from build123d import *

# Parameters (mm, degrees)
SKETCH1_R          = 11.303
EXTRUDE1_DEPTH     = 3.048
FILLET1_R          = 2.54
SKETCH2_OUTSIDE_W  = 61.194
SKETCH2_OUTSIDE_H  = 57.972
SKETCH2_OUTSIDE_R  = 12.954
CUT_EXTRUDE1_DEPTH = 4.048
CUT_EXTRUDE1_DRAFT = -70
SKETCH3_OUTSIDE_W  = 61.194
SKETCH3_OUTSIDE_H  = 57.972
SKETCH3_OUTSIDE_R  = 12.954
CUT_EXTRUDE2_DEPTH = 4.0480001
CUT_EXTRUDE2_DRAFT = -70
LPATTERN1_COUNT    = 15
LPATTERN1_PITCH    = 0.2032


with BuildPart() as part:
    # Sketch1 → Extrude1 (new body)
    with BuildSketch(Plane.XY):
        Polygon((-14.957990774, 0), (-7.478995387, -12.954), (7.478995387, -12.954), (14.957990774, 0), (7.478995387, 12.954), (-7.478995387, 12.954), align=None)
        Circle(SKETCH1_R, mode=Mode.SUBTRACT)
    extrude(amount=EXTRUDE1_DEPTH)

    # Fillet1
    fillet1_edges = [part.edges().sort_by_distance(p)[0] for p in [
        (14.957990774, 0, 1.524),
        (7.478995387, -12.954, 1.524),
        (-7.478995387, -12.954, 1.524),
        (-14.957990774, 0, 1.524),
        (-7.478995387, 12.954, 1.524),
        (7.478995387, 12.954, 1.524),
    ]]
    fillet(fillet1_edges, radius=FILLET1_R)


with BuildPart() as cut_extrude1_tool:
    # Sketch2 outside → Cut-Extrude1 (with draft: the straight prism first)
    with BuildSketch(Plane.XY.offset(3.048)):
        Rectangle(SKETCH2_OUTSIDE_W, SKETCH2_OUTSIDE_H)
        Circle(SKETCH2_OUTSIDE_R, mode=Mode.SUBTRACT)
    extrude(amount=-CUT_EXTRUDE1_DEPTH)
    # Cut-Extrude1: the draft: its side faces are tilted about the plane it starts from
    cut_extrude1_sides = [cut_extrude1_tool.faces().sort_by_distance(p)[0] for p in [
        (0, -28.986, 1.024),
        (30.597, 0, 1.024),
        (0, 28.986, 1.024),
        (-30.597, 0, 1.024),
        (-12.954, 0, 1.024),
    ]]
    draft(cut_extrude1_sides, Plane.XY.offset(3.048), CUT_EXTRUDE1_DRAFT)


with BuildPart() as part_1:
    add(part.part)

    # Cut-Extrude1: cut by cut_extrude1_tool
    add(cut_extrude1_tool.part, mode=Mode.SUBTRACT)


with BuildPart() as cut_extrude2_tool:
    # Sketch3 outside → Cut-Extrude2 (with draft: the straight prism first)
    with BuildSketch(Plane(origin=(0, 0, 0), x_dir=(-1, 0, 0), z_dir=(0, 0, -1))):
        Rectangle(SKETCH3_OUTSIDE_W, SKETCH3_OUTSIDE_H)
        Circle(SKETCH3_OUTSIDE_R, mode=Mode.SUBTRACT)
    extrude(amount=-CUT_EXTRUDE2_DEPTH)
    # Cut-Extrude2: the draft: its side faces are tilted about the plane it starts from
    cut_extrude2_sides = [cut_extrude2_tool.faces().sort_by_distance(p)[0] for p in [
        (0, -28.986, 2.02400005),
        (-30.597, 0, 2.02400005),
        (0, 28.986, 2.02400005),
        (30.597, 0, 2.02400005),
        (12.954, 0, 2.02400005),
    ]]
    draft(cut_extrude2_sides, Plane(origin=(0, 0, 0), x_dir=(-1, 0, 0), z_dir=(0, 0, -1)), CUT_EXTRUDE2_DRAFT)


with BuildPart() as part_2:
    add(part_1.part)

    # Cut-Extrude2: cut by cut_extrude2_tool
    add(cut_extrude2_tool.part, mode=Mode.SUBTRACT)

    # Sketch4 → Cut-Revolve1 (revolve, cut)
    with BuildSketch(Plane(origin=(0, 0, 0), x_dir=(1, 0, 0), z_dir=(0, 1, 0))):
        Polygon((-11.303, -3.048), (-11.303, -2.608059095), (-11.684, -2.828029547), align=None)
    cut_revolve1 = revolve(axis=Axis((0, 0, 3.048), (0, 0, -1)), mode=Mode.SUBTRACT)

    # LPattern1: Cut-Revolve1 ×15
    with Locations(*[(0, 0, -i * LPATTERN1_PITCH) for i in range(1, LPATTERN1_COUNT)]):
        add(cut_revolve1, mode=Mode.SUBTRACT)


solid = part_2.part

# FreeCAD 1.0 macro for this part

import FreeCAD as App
import Part
import Sketcher
from FreeCAD import Vector
Q = App.Units.Quantity


def edges_at(feature, points):
    """Names of the edges that pass closest to the given points."""
    edges = feature.Shape.Edges
    near = lambda p: min(range(len(edges)), key=lambda i: edges[i].distToShape(Part.Vertex(*p))[0])
    return sorted({f"Edge{near(p) + 1}" for p in points})


def faces_at(feature, points):
    """Names of the faces that lie closest to the given points."""
    faces = feature.Shape.Faces
    near = lambda p: min(range(len(faces)), key=lambda i: faces[i].distToShape(Part.Vertex(*p))[0])
    return sorted({f"Face{near(p) + 1}" for p in points})


def add_polygon(sketch, points):
    """Adds a closed chain of lines whose ends are joined by coincident constraints."""
    first, n = sketch.GeometryCount, len(points)
    for a, b in zip(points, points[1:] + points[:1]):
        sketch.addGeometry(Part.LineSegment(App.Vector(*a, 0), App.Vector(*b, 0)), False)
    for i in range(n):
        sketch.addConstraint(Sketcher.Constraint("Coincident", first + i, 2, first + (i + 1) % n, 1))

doc = App.newDocument("Part")
body = doc.addObject("PartDesign::Body", "Body")

sketch1 = body.newObject("Sketcher::SketchObject", "Sketch")
sketch1.AttachmentSupport = (doc.getObject("XY_Plane"), [""])
sketch1.MapMode = "FlatFace"
add_polygon(sketch1, [(-15, 0), (-7, -13), (7, -13), (15, 0), (7, 13), (-7, 13)])
sketch1.addGeometry(Part.Circle(Vector(0, 0, 0), Vector(0, 0, 1), 11), False)
sketch1.addConstraint([
    Sketcher.Constraint("Horizontal", 1),
    Sketcher.Constraint("Horizontal", 4),
    Sketcher.Constraint("Coincident", 6, 3, -1, 1),
    Sketcher.Constraint("Symmetric", 0, 2, 3, 2, -1, 1),
    Sketcher.Constraint("Symmetric", 2, 2, 5, 2, -1, 1),
    Sketcher.Constraint("PointOnObject", 2, 2, -1),
    Sketcher.Constraint("Parallel", 2, 5),
    Sketcher.Constraint("Vertical", 1, 2, 3, 2),
    Sketcher.Constraint("Diameter", 6, Q("0.89 in")),
    Sketcher.Constraint("Angle", 0, Q("-60 deg")),
    Sketcher.Constraint("DistanceY", 0, 2, -1, 1, Q("0.51 in")),
    Sketcher.Constraint("DistanceX", 1, 1, 1, 2, Q("14.957991 mm")),
])
pad1 = body.newObject("PartDesign::Pad", "Pad")
pad1.Profile = sketch1
pad1.Length = Q("0.12 in")
doc.recompute()

fillet = body.newObject("PartDesign::Fillet", "Fillet")
fillet.Base = (pad1, edges_at(pad1, [
    (14.958, 0, 1.524),
    (7.479, -12.954, 1.524),
    (-7.479, -12.954, 1.524),
    (-14.958, 0, 1.524),
    (-7.479, 12.954, 1.524),
    (7.479, 12.954, 1.524),
]))
fillet.Radius = Q("0.1 in")
body2 = doc.addObject("PartDesign::Body", "Body001")

sketch2 = body2.newObject("Sketcher::SketchObject", "Sketch001")
sketch2.AttachmentSupport = (doc.getObject("XY_Plane001"), [""])
sketch2.MapMode = "FlatFace"
sketch2.AttachmentOffset = App.Placement(Vector(0, 0, 0.12 * 25.4), App.Rotation())
add_polygon(sketch2, [(-31, 29), (-31, -29), (31, -29), (31, 29)])
sketch2.addGeometry(Part.Circle(Vector(0, 0, 0), Vector(0, 0, 1), 13), False)
sketch2.addConstraint([
    Sketcher.Constraint("Vertical", 0),
    Sketcher.Constraint("Horizontal", 1),
    Sketcher.Constraint("Vertical", 2),
    Sketcher.Constraint("Horizontal", 3),
    Sketcher.Constraint("Coincident", 4, 3, -1, 1),
    Sketcher.Constraint("Symmetric", 0, 2, 2, 2, -1, 1),
    Sketcher.Constraint("Diameter", 4, Q("1.02 in")),
    Sketcher.Constraint("DistanceX", 1, 1, 1, 2, Q("61.194 mm")),
    Sketcher.Constraint("DistanceY", 0, 2, 0, 1, Q("57.972 mm")),
])
pad2 = body2.newObject("PartDesign::Pad", "Pad001")
pad2.Profile = sketch2
pad2.Length = 4.048
pad2.Reversed = True
doc.recompute()

datumplane = body2.newObject("PartDesign::Plane", "DatumPlane")
datumplane.AttachmentSupport = (doc.getObject("XY_Plane001"), [""])
datumplane.MapMode = "FlatFace"
datumplane.AttachmentOffset = App.Placement(Vector(0, 0, 0.12 * 25.4), App.Rotation())
draft = body2.newObject("PartDesign::Draft", "Draft")
draft.Base = (pad2, faces_at(pad2, [
    (0, -28.986, 1.024),
    (30.597, 0, 1.024),
    (0, 28.986, 1.024),
    (-30.597, 0, 1.024),
    (-12.954, 0, 1.024),
]))
draft.NeutralPlane = (datumplane, [""])
draft.Angle = 70
draft.Reversed = True
doc.recompute()

boolean = body.newObject("PartDesign::Boolean", "Boolean")
boolean.Type = "Cut"
boolean.addObjects([body2])
body3 = doc.addObject("PartDesign::Body", "Body002")

sketch3 = body3.newObject("Sketcher::SketchObject", "Sketch002")
sketch3.AttachmentSupport = (doc.getObject("XY_Plane002"), [""])
sketch3.MapMode = "FlatFace"
add_polygon(sketch3, [(31, 29), (31, -29), (-31, -29), (-31, 29)])
sketch3.addGeometry(Part.Circle(Vector(0, 0, 0), Vector(0, 0, 1), 13), False)
sketch3.addConstraint([
    Sketcher.Constraint("Vertical", 0),
    Sketcher.Constraint("Horizontal", 1),
    Sketcher.Constraint("Vertical", 2),
    Sketcher.Constraint("Horizontal", 3),
    Sketcher.Constraint("Coincident", 4, 3, -1, 1),
    Sketcher.Constraint("Symmetric", 0, 2, 2, 2, -1, 1),
    Sketcher.Constraint("Diameter", 4, Q("1.02 in")),
    Sketcher.Constraint("DistanceX", 1, 2, 1, 1, Q("61.194 mm")),
    Sketcher.Constraint("DistanceY", 0, 2, 0, 1, Q("57.972 mm")),
])
pad3 = body3.newObject("PartDesign::Pad", "Pad002")
pad3.Profile = sketch3
pad3.Length = 4.048
doc.recompute()

draft2 = body3.newObject("PartDesign::Draft", "Draft001")
draft2.Base = (pad3, faces_at(pad3, [
    (0, -28.986, 2.024),
    (-30.597, 0, 2.024),
    (0, 28.986, 2.024),
    (30.597, 0, 2.024),
    (12.954, 0, 2.024),
]))
draft2.NeutralPlane = (doc.getObject("XY_Plane002"), [""])
draft2.Angle = 70
draft2.Reversed = False
doc.recompute()

boolean2 = body.newObject("PartDesign::Boolean", "Boolean001")
boolean2.Type = "Cut"
boolean2.addObjects([body3])

sketch4 = body.newObject("Sketcher::SketchObject", "Sketch003")
sketch4.AttachmentSupport = (doc.getObject("XZ_Plane"), [""])
sketch4.MapMode = "FlatFace"
add_polygon(sketch4, [(-11.3, 3.05), (-11.3, 2.61), (-11.68, 2.83)])
sketch4.addConstraint([
    Sketcher.Constraint("Vertical", 0),
    Sketcher.Constraint("Equal", 1, 2),
    Sketcher.Constraint("Angle", 1, Q("150 deg")),
    Sketcher.Constraint("DistanceX", 1, 2, -1, 1, Q("0.46 in")),
    Sketcher.Constraint("DistanceY", -1, 1, 2, 2, Q("0.12 in")),
    Sketcher.Constraint("DistanceX", 0, 2, -1, 1, Q("0.445 in")),
])
groove = body.newObject("PartDesign::Groove", "Groove")
groove.Profile = sketch4
groove.ReferenceAxis = (sketch4, ["V_Axis"])
groove.Angle = 360
doc.recompute()

linearpattern = body.newObject("PartDesign::LinearPattern", "LinearPattern")
linearpattern.Originals = [groove]
linearpattern.Direction = (doc.getObject("Z_Axis"), [""])
linearpattern.Mode = "offset"
linearpattern.Offset = Q("0.008 in")
linearpattern.Occurrences = 15
linearpattern.Reversed = True
body.Tip = linearpattern

doc.recompute()
